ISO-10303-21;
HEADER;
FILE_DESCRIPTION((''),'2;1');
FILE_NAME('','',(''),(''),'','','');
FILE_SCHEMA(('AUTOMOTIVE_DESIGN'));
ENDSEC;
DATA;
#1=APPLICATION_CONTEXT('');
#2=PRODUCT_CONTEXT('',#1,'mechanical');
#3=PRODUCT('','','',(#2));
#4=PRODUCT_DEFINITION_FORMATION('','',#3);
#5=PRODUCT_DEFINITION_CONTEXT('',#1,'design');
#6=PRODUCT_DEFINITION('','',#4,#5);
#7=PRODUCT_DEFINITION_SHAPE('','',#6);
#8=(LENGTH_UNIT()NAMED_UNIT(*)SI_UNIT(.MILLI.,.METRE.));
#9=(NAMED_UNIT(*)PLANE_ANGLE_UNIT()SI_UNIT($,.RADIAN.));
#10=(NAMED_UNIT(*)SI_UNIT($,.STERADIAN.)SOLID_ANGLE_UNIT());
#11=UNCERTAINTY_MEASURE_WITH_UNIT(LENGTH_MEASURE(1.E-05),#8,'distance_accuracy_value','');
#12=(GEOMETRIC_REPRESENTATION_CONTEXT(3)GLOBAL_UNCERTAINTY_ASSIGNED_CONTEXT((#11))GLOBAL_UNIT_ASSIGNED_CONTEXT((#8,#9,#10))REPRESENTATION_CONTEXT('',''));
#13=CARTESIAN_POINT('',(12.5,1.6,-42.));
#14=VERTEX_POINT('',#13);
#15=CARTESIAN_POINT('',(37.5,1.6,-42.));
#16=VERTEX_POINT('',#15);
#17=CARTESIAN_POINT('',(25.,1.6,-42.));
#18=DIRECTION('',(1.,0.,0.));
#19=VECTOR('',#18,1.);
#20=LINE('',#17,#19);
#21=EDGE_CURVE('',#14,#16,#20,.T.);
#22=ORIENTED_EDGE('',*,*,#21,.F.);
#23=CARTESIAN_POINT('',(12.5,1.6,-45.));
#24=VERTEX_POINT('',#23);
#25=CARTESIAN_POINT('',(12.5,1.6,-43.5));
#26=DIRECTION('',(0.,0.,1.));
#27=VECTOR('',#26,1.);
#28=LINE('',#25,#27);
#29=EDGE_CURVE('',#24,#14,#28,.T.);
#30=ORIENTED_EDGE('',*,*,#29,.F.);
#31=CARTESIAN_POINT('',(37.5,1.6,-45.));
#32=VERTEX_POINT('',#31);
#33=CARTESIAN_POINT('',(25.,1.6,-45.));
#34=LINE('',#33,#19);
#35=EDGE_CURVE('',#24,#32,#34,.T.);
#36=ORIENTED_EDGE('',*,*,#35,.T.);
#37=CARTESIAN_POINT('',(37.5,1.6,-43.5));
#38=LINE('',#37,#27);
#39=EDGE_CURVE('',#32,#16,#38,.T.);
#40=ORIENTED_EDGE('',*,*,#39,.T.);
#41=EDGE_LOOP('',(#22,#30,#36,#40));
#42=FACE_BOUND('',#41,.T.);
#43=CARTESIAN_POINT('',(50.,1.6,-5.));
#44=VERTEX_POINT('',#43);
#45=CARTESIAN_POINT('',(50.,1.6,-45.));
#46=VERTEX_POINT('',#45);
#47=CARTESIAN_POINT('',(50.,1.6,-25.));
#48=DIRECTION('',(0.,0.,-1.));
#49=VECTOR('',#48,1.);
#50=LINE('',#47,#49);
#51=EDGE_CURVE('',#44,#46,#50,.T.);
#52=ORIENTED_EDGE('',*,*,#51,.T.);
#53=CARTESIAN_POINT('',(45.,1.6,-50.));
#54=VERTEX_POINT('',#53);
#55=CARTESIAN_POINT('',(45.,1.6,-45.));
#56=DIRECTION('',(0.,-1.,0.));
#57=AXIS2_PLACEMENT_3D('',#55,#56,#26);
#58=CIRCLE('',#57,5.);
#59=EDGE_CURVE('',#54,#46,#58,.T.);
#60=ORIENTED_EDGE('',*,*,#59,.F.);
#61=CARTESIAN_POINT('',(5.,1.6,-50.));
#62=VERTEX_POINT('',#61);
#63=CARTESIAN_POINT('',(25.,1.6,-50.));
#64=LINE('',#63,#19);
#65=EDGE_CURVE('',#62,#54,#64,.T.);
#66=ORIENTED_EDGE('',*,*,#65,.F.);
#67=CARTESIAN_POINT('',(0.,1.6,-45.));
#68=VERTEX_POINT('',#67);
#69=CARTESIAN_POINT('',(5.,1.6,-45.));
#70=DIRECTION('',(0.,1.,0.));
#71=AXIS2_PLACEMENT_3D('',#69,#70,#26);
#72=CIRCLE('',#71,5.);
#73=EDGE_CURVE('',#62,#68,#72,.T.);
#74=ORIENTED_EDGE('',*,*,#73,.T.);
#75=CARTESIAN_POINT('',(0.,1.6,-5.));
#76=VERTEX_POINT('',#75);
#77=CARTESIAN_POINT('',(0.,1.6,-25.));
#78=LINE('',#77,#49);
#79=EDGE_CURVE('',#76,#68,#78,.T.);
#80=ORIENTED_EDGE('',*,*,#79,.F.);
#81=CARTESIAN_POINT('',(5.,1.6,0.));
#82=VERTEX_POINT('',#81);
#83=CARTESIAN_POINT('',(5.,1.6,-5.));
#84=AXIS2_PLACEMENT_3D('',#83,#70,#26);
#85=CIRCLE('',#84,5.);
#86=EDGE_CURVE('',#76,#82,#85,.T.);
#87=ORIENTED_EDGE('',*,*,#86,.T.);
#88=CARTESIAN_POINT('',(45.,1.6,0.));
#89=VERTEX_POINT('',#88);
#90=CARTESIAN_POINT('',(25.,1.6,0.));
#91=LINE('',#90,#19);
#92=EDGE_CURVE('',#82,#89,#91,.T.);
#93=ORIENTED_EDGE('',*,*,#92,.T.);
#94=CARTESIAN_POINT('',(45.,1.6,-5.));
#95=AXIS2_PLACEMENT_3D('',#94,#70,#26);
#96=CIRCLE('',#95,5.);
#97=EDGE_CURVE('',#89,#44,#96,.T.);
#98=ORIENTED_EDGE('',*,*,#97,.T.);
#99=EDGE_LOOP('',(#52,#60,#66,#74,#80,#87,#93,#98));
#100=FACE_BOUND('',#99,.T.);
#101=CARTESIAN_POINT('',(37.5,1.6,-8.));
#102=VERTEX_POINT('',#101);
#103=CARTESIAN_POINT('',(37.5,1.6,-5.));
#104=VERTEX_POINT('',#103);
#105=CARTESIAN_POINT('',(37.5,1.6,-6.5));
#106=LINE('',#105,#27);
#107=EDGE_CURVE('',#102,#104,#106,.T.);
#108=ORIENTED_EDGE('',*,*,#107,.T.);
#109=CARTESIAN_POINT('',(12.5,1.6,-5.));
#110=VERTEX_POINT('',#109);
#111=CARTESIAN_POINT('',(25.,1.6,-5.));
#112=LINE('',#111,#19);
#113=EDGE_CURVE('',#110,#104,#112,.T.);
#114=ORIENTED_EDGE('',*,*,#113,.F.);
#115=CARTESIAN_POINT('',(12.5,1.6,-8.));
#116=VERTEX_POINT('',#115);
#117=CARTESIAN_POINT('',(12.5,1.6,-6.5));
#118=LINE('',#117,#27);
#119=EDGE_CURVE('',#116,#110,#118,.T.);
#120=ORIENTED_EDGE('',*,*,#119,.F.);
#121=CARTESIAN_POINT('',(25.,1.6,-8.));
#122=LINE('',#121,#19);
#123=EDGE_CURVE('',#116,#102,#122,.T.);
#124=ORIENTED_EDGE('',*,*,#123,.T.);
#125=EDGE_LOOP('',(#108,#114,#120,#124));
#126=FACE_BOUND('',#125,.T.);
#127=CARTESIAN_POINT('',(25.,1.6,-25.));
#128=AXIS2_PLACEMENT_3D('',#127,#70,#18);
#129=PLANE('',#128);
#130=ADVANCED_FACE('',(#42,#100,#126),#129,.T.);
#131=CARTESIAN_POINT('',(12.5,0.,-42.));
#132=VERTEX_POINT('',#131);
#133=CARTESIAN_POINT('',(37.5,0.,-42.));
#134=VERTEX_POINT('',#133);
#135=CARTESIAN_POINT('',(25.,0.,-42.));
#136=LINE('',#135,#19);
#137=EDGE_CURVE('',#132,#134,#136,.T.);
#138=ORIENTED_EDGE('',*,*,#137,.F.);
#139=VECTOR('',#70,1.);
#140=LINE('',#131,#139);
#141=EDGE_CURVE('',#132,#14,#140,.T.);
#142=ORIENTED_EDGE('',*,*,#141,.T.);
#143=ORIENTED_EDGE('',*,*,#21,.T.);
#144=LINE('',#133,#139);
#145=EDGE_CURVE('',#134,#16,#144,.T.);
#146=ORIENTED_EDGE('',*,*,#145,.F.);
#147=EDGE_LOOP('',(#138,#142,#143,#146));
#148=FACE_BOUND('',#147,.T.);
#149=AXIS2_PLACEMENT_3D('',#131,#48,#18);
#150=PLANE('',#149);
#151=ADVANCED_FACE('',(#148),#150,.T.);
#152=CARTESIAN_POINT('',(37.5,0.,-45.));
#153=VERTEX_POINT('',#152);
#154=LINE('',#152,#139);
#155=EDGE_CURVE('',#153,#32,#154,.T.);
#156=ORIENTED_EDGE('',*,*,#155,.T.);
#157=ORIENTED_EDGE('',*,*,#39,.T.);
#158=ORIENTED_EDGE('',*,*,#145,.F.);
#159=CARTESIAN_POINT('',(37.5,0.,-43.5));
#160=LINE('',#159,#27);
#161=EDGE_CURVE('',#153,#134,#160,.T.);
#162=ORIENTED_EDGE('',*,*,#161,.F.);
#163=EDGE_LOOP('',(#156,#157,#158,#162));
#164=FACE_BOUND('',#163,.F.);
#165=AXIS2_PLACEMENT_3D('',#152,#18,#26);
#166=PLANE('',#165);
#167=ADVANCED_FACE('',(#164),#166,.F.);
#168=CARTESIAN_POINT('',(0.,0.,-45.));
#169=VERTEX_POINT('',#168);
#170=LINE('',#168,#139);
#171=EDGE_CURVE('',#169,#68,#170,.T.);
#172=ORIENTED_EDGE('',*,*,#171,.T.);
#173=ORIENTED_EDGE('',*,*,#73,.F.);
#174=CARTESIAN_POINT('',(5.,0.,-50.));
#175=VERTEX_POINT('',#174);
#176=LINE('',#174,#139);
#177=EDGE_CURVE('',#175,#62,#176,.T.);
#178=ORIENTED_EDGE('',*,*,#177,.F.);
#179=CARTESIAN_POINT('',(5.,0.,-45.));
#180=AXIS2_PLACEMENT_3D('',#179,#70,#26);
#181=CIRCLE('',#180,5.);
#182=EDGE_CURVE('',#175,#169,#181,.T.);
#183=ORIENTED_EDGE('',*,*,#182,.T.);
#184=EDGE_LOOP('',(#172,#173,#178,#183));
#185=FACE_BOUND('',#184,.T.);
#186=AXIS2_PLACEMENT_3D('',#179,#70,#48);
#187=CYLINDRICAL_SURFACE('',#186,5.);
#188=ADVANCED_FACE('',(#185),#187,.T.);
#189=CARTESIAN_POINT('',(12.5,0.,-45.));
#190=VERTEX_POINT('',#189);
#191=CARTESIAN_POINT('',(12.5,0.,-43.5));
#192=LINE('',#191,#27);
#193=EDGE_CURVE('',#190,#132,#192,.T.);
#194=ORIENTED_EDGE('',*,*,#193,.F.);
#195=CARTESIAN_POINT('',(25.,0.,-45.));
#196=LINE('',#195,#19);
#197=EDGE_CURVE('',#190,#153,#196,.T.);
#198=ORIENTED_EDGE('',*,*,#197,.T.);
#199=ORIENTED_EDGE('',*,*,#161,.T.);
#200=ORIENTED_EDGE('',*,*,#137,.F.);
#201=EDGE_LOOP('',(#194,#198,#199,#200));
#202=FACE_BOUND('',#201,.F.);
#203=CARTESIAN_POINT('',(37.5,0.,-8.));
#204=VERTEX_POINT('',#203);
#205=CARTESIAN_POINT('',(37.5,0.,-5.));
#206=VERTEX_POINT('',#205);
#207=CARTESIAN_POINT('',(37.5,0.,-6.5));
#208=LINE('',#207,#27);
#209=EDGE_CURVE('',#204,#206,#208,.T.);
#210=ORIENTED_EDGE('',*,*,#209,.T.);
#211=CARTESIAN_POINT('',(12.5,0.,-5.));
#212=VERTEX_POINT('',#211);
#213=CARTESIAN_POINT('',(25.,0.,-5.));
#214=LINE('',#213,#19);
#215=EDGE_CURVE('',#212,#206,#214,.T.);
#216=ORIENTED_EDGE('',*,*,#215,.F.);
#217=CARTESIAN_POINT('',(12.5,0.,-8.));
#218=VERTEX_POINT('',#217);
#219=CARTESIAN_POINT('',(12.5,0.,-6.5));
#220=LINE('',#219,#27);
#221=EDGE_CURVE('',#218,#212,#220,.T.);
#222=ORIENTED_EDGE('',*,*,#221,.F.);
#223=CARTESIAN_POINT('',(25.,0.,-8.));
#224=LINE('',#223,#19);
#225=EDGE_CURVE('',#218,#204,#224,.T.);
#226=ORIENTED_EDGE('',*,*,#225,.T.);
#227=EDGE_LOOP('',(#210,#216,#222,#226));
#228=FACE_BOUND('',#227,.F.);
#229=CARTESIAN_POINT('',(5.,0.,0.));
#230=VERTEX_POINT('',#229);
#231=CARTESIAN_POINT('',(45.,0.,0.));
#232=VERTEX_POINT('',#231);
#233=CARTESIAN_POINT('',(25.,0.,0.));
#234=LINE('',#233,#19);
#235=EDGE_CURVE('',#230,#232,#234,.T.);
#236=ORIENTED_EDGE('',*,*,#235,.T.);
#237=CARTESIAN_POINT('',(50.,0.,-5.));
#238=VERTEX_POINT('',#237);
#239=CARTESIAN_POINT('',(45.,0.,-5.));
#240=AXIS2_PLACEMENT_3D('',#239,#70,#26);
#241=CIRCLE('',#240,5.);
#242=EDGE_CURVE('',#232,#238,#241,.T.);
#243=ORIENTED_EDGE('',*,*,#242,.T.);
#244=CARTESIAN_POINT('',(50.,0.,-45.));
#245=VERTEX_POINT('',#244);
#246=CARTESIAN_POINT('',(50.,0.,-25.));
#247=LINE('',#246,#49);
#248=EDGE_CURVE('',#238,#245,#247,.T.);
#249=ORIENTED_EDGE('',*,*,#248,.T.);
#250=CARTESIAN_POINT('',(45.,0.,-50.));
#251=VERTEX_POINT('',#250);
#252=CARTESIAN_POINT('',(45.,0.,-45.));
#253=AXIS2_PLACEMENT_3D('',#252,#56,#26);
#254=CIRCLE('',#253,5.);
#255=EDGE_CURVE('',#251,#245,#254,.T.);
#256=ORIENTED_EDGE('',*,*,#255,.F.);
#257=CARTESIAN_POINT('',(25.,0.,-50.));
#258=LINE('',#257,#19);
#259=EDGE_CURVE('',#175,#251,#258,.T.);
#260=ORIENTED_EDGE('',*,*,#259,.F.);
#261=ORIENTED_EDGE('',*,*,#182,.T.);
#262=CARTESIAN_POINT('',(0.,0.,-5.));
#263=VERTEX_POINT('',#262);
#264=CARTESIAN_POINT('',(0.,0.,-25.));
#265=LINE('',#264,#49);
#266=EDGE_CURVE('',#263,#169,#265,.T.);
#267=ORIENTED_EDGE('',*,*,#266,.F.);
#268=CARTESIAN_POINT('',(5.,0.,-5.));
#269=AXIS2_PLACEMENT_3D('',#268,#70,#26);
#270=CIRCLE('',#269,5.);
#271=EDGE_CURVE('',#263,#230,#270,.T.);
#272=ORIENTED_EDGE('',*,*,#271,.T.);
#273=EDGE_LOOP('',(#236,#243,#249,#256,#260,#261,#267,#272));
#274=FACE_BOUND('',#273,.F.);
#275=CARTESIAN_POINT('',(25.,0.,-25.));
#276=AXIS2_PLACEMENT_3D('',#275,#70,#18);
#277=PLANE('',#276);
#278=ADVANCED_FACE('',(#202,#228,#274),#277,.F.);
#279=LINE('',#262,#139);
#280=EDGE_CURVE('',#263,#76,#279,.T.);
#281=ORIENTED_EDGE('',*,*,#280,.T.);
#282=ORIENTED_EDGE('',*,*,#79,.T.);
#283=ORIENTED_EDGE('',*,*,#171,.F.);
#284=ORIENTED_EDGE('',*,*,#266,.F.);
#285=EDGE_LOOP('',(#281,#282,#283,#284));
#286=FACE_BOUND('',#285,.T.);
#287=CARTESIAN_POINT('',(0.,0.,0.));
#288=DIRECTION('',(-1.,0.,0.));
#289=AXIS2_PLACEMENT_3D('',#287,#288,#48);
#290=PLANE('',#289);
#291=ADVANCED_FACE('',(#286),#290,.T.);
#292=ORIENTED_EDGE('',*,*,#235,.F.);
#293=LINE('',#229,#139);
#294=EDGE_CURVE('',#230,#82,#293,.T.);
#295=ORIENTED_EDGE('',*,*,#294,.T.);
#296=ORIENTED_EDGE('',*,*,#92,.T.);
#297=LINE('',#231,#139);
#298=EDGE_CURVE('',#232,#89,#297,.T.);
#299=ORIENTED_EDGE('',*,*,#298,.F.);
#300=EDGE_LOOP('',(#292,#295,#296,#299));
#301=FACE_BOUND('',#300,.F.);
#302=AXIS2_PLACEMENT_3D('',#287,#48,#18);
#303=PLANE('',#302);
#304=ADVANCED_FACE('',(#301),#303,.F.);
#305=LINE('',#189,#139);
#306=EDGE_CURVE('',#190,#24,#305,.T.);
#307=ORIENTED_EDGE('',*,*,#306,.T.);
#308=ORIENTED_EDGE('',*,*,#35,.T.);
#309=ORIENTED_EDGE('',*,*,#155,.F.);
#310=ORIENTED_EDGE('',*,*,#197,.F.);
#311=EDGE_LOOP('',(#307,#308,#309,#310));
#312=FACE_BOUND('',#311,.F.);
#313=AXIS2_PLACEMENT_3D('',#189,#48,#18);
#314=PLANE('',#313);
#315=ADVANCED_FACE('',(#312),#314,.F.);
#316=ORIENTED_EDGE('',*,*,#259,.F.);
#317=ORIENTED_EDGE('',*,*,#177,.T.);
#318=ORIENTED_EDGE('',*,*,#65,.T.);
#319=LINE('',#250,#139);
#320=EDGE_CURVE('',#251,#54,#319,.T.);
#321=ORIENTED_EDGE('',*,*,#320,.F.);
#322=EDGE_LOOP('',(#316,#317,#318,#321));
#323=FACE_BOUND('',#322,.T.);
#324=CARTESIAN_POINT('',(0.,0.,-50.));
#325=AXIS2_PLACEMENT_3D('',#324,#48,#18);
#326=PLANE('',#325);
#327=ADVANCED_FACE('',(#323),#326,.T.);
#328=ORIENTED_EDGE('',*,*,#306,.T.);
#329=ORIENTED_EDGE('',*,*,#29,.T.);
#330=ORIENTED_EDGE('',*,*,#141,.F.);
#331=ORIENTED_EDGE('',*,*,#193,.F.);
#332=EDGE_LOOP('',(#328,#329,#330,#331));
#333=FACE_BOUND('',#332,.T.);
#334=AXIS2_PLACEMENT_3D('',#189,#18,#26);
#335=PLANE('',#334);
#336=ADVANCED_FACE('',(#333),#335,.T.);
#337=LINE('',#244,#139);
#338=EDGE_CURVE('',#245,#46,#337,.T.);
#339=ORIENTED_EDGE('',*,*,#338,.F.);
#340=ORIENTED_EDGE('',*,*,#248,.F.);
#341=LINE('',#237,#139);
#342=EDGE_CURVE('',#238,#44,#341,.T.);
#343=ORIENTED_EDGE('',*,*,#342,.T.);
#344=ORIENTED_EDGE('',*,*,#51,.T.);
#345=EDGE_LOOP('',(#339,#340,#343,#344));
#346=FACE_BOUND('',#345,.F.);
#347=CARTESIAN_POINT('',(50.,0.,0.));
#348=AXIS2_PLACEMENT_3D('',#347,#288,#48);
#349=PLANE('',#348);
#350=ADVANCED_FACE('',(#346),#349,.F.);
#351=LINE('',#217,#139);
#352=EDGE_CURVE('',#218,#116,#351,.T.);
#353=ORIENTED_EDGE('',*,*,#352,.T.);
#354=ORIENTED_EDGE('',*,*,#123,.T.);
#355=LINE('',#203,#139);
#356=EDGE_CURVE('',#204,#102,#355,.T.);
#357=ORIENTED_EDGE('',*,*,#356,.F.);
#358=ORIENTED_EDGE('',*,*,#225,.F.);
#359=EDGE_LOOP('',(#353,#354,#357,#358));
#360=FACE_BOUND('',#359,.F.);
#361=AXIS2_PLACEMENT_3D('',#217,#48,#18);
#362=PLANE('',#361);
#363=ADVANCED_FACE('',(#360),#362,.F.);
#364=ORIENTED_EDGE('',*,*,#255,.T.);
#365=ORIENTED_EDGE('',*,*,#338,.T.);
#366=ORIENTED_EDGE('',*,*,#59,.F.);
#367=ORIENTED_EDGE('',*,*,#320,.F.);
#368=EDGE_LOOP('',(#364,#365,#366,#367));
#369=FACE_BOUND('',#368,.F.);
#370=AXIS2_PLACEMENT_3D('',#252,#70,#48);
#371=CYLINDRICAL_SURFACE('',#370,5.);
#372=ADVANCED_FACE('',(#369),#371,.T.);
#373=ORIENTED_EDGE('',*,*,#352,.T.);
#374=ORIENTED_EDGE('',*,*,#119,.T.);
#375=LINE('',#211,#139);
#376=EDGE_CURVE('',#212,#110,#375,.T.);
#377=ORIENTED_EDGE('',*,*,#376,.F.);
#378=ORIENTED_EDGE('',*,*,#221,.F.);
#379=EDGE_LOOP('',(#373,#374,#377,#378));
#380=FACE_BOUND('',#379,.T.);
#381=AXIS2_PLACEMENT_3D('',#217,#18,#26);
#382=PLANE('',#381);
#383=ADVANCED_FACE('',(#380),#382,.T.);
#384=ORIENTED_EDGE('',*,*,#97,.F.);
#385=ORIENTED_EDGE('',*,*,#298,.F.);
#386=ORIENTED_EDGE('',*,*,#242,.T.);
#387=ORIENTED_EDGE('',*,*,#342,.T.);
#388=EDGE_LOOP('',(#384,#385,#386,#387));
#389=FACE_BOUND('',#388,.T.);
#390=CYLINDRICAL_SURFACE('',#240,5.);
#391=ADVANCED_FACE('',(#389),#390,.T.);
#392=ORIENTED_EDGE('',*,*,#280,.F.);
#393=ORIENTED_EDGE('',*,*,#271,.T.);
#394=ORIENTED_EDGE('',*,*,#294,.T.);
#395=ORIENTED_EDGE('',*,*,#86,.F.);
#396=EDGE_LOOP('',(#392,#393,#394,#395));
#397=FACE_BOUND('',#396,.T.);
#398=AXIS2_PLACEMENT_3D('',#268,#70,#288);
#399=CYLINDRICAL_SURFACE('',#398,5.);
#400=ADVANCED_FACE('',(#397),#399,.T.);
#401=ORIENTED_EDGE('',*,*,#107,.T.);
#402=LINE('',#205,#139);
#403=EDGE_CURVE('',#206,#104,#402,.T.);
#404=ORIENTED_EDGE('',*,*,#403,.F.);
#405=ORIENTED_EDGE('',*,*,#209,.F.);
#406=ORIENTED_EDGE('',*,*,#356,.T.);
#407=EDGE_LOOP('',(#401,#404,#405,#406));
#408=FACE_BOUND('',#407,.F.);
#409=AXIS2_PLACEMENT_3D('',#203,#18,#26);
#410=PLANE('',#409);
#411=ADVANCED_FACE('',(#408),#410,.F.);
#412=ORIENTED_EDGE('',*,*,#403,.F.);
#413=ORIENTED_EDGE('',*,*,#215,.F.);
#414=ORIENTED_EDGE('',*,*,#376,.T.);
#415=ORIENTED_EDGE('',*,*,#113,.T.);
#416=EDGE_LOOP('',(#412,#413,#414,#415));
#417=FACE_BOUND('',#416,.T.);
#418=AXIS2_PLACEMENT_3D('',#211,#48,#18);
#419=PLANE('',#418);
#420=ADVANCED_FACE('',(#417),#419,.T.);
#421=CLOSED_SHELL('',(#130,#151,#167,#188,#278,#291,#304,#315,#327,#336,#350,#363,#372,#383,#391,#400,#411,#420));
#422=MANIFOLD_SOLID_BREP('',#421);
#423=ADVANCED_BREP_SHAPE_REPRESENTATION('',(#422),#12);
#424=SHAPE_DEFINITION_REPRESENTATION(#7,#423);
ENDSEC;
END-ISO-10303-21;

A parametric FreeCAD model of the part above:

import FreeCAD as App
import Part
import Sketcher
from FreeCAD import Vector
Q = App.Units.Quantity


def edges_at(feature, points):
    """Names of the edges that pass closest to the given points."""
    edges = feature.Shape.Edges
    near = lambda p: min(range(len(edges)), key=lambda i: edges[i].distToShape(Part.Vertex(*p))[0])
    return sorted({f"Edge{near(p) + 1}" for p in points})

doc = App.newDocument("Part")
body = doc.addObject("PartDesign::Body", "Body")

sketch1 = doc.addObject("Sketcher::SketchObject", "Sketch")
body.addObject(sketch1)
sketch1.AttachmentSupport = (doc.XZ_Plane, [""])
sketch1.MapMode = "FlatFace"
sketch1.addGeometry(Part.LineSegment(Vector(0, -50, 0), Vector(0, 0, 0)), False)
sketch1.addGeometry(Part.LineSegment(Vector(0, 0, 0), Vector(50, 0, 0)), False)
sketch1.addGeometry(Part.LineSegment(Vector(50, 0, 0), Vector(50, -50, 0)), False)
sketch1.addGeometry(Part.LineSegment(Vector(50, -50, 0), Vector(0, -50, 0)), False)
sketch1.addConstraint(Sketcher.Constraint("Coincident", 0, 2, 1, 1))
sketch1.addConstraint(Sketcher.Constraint("Coincident", 1, 2, 2, 1))
sketch1.addConstraint(Sketcher.Constraint("Coincident", 2, 2, 3, 1))
sketch1.addConstraint(Sketcher.Constraint("Coincident", 3, 2, 0, 1))
sketch1.addConstraint(Sketcher.Constraint("Vertical", 0))
sketch1.addConstraint(Sketcher.Constraint("Horizontal", 1))
sketch1.addConstraint(Sketcher.Constraint("Vertical", 2))
sketch1.addConstraint(Sketcher.Constraint("Horizontal", 3))
sketch1.addConstraint(Sketcher.Constraint("Coincident", 0, 2, -1, 1))
sketch1.addConstraint(Sketcher.Constraint("Equal", 3, 0))
sketch1.addConstraint(Sketcher.Constraint("DistanceX", 1, 1, 1, 2, Q("50 mm")))
pad1 = doc.addObject("PartDesign::Pad", "Pad")
body.addObject(pad1)
pad1.Profile = sketch1
pad1.Length = 1.6
pad1.Reversed = True

sketch2 = doc.addObject("Sketcher::SketchObject", "Sketch001")
body.addObject(sketch2)
sketch2.AttachmentSupport = (doc.XZ_Plane, [""])
sketch2.MapMode = "FlatFace"
sketch2.addGeometry(Part.LineSegment(Vector(12.5, -5, 0), Vector(12.5, -8, 0)), False)
sketch2.addGeometry(Part.LineSegment(Vector(12.5, -8, 0), Vector(37.5, -8, 0)), False)
sketch2.addGeometry(Part.LineSegment(Vector(37.5, -8, 0), Vector(37.5, -5, 0)), False)
sketch2.addGeometry(Part.LineSegment(Vector(37.5, -5, 0), Vector(12.5, -5, 0)), False)
sketch2.addGeometry(Part.LineSegment(Vector(12.5, -42, 0), Vector(12.5, -45, 0)), False)
sketch2.addGeometry(Part.LineSegment(Vector(12.5, -45, 0), Vector(37.5, -45, 0)), False)
sketch2.addGeometry(Part.LineSegment(Vector(37.5, -45, 0), Vector(37.5, -42, 0)), False)
sketch2.addGeometry(Part.LineSegment(Vector(37.5, -42, 0), Vector(12.5, -42, 0)), False)
sketch2.addConstraint(Sketcher.Constraint("Coincident", 0, 2, 1, 1))
sketch2.addConstraint(Sketcher.Constraint("Coincident", 1, 2, 2, 1))
sketch2.addConstraint(Sketcher.Constraint("Coincident", 2, 2, 3, 1))
sketch2.addConstraint(Sketcher.Constraint("Coincident", 3, 2, 0, 1))
sketch2.addConstraint(Sketcher.Constraint("Coincident", 4, 2, 5, 1))
sketch2.addConstraint(Sketcher.Constraint("Coincident", 5, 2, 6, 1))
sketch2.addConstraint(Sketcher.Constraint("Coincident", 6, 2, 7, 1))
sketch2.addConstraint(Sketcher.Constraint("Coincident", 7, 2, 4, 1))
sketch2.addConstraint(Sketcher.Constraint("Vertical", 0))
sketch2.addConstraint(Sketcher.Constraint("Horizontal", 1))
sketch2.addConstraint(Sketcher.Constraint("Vertical", 2))
sketch2.addConstraint(Sketcher.Constraint("Horizontal", 3))
sketch2.addConstraint(Sketcher.Constraint("Vertical", 4))
sketch2.addConstraint(Sketcher.Constraint("Horizontal", 5))
sketch2.addConstraint(Sketcher.Constraint("Vertical", 6))
sketch2.addConstraint(Sketcher.Constraint("Horizontal", 7))
sketch2.addConstraint(Sketcher.Constraint("Vertical", 3, 2, 4, 2))
sketch2.addConstraint(Sketcher.Constraint("Vertical", 2, 2, 5, 2))
sketch2.addConstraint(Sketcher.Constraint("Equal", 2, 4))
sketch2.addConstraint(Sketcher.Constraint("DistanceX", 1, 1, 1, 2, Q("25 mm")))
sketch2.addConstraint(Sketcher.Constraint("DistanceY", 0, 2, 0, 1, Q("3 mm")))
sketch2.addConstraint(Sketcher.Constraint("DistanceY", 0, 2, -1, 1, Q("8 mm")))
sketch2.addConstraint(Sketcher.Constraint("DistanceY", 4, 2, -1, 1, Q("45 mm")))
sketch2.addConstraint(Sketcher.Constraint("DistanceX", -1, 1, 0, 2, Q("12.5 mm")))
pocket1 = doc.addObject("PartDesign::Pocket", "Pocket")
body.addObject(pocket1)
pocket1.Profile = sketch2
pocket1.Length = 1.6
doc.recompute()

fillet = doc.addObject("PartDesign::Fillet", "Fillet")
body.addObject(fillet)
fillet.Base = (pocket1, edges_at(pocket1, [(0, 0.8, 0), (50, 0.8, 0)]))
fillet.Radius = 5
doc.recompute()

fillet2 = doc.addObject("PartDesign::Fillet", "Fillet001")
body.addObject(fillet2)
fillet2.Base = (fillet, edges_at(fillet, [(50, 0.8, -50)]))
fillet2.Radius = 5
doc.recompute()

fillet3 = doc.addObject("PartDesign::Fillet", "Fillet002")
body.addObject(fillet3)
fillet3.Base = (fillet2, edges_at(fillet2, [(0, 0.8, -50)]))
fillet3.Radius = 5

doc.recompute()
